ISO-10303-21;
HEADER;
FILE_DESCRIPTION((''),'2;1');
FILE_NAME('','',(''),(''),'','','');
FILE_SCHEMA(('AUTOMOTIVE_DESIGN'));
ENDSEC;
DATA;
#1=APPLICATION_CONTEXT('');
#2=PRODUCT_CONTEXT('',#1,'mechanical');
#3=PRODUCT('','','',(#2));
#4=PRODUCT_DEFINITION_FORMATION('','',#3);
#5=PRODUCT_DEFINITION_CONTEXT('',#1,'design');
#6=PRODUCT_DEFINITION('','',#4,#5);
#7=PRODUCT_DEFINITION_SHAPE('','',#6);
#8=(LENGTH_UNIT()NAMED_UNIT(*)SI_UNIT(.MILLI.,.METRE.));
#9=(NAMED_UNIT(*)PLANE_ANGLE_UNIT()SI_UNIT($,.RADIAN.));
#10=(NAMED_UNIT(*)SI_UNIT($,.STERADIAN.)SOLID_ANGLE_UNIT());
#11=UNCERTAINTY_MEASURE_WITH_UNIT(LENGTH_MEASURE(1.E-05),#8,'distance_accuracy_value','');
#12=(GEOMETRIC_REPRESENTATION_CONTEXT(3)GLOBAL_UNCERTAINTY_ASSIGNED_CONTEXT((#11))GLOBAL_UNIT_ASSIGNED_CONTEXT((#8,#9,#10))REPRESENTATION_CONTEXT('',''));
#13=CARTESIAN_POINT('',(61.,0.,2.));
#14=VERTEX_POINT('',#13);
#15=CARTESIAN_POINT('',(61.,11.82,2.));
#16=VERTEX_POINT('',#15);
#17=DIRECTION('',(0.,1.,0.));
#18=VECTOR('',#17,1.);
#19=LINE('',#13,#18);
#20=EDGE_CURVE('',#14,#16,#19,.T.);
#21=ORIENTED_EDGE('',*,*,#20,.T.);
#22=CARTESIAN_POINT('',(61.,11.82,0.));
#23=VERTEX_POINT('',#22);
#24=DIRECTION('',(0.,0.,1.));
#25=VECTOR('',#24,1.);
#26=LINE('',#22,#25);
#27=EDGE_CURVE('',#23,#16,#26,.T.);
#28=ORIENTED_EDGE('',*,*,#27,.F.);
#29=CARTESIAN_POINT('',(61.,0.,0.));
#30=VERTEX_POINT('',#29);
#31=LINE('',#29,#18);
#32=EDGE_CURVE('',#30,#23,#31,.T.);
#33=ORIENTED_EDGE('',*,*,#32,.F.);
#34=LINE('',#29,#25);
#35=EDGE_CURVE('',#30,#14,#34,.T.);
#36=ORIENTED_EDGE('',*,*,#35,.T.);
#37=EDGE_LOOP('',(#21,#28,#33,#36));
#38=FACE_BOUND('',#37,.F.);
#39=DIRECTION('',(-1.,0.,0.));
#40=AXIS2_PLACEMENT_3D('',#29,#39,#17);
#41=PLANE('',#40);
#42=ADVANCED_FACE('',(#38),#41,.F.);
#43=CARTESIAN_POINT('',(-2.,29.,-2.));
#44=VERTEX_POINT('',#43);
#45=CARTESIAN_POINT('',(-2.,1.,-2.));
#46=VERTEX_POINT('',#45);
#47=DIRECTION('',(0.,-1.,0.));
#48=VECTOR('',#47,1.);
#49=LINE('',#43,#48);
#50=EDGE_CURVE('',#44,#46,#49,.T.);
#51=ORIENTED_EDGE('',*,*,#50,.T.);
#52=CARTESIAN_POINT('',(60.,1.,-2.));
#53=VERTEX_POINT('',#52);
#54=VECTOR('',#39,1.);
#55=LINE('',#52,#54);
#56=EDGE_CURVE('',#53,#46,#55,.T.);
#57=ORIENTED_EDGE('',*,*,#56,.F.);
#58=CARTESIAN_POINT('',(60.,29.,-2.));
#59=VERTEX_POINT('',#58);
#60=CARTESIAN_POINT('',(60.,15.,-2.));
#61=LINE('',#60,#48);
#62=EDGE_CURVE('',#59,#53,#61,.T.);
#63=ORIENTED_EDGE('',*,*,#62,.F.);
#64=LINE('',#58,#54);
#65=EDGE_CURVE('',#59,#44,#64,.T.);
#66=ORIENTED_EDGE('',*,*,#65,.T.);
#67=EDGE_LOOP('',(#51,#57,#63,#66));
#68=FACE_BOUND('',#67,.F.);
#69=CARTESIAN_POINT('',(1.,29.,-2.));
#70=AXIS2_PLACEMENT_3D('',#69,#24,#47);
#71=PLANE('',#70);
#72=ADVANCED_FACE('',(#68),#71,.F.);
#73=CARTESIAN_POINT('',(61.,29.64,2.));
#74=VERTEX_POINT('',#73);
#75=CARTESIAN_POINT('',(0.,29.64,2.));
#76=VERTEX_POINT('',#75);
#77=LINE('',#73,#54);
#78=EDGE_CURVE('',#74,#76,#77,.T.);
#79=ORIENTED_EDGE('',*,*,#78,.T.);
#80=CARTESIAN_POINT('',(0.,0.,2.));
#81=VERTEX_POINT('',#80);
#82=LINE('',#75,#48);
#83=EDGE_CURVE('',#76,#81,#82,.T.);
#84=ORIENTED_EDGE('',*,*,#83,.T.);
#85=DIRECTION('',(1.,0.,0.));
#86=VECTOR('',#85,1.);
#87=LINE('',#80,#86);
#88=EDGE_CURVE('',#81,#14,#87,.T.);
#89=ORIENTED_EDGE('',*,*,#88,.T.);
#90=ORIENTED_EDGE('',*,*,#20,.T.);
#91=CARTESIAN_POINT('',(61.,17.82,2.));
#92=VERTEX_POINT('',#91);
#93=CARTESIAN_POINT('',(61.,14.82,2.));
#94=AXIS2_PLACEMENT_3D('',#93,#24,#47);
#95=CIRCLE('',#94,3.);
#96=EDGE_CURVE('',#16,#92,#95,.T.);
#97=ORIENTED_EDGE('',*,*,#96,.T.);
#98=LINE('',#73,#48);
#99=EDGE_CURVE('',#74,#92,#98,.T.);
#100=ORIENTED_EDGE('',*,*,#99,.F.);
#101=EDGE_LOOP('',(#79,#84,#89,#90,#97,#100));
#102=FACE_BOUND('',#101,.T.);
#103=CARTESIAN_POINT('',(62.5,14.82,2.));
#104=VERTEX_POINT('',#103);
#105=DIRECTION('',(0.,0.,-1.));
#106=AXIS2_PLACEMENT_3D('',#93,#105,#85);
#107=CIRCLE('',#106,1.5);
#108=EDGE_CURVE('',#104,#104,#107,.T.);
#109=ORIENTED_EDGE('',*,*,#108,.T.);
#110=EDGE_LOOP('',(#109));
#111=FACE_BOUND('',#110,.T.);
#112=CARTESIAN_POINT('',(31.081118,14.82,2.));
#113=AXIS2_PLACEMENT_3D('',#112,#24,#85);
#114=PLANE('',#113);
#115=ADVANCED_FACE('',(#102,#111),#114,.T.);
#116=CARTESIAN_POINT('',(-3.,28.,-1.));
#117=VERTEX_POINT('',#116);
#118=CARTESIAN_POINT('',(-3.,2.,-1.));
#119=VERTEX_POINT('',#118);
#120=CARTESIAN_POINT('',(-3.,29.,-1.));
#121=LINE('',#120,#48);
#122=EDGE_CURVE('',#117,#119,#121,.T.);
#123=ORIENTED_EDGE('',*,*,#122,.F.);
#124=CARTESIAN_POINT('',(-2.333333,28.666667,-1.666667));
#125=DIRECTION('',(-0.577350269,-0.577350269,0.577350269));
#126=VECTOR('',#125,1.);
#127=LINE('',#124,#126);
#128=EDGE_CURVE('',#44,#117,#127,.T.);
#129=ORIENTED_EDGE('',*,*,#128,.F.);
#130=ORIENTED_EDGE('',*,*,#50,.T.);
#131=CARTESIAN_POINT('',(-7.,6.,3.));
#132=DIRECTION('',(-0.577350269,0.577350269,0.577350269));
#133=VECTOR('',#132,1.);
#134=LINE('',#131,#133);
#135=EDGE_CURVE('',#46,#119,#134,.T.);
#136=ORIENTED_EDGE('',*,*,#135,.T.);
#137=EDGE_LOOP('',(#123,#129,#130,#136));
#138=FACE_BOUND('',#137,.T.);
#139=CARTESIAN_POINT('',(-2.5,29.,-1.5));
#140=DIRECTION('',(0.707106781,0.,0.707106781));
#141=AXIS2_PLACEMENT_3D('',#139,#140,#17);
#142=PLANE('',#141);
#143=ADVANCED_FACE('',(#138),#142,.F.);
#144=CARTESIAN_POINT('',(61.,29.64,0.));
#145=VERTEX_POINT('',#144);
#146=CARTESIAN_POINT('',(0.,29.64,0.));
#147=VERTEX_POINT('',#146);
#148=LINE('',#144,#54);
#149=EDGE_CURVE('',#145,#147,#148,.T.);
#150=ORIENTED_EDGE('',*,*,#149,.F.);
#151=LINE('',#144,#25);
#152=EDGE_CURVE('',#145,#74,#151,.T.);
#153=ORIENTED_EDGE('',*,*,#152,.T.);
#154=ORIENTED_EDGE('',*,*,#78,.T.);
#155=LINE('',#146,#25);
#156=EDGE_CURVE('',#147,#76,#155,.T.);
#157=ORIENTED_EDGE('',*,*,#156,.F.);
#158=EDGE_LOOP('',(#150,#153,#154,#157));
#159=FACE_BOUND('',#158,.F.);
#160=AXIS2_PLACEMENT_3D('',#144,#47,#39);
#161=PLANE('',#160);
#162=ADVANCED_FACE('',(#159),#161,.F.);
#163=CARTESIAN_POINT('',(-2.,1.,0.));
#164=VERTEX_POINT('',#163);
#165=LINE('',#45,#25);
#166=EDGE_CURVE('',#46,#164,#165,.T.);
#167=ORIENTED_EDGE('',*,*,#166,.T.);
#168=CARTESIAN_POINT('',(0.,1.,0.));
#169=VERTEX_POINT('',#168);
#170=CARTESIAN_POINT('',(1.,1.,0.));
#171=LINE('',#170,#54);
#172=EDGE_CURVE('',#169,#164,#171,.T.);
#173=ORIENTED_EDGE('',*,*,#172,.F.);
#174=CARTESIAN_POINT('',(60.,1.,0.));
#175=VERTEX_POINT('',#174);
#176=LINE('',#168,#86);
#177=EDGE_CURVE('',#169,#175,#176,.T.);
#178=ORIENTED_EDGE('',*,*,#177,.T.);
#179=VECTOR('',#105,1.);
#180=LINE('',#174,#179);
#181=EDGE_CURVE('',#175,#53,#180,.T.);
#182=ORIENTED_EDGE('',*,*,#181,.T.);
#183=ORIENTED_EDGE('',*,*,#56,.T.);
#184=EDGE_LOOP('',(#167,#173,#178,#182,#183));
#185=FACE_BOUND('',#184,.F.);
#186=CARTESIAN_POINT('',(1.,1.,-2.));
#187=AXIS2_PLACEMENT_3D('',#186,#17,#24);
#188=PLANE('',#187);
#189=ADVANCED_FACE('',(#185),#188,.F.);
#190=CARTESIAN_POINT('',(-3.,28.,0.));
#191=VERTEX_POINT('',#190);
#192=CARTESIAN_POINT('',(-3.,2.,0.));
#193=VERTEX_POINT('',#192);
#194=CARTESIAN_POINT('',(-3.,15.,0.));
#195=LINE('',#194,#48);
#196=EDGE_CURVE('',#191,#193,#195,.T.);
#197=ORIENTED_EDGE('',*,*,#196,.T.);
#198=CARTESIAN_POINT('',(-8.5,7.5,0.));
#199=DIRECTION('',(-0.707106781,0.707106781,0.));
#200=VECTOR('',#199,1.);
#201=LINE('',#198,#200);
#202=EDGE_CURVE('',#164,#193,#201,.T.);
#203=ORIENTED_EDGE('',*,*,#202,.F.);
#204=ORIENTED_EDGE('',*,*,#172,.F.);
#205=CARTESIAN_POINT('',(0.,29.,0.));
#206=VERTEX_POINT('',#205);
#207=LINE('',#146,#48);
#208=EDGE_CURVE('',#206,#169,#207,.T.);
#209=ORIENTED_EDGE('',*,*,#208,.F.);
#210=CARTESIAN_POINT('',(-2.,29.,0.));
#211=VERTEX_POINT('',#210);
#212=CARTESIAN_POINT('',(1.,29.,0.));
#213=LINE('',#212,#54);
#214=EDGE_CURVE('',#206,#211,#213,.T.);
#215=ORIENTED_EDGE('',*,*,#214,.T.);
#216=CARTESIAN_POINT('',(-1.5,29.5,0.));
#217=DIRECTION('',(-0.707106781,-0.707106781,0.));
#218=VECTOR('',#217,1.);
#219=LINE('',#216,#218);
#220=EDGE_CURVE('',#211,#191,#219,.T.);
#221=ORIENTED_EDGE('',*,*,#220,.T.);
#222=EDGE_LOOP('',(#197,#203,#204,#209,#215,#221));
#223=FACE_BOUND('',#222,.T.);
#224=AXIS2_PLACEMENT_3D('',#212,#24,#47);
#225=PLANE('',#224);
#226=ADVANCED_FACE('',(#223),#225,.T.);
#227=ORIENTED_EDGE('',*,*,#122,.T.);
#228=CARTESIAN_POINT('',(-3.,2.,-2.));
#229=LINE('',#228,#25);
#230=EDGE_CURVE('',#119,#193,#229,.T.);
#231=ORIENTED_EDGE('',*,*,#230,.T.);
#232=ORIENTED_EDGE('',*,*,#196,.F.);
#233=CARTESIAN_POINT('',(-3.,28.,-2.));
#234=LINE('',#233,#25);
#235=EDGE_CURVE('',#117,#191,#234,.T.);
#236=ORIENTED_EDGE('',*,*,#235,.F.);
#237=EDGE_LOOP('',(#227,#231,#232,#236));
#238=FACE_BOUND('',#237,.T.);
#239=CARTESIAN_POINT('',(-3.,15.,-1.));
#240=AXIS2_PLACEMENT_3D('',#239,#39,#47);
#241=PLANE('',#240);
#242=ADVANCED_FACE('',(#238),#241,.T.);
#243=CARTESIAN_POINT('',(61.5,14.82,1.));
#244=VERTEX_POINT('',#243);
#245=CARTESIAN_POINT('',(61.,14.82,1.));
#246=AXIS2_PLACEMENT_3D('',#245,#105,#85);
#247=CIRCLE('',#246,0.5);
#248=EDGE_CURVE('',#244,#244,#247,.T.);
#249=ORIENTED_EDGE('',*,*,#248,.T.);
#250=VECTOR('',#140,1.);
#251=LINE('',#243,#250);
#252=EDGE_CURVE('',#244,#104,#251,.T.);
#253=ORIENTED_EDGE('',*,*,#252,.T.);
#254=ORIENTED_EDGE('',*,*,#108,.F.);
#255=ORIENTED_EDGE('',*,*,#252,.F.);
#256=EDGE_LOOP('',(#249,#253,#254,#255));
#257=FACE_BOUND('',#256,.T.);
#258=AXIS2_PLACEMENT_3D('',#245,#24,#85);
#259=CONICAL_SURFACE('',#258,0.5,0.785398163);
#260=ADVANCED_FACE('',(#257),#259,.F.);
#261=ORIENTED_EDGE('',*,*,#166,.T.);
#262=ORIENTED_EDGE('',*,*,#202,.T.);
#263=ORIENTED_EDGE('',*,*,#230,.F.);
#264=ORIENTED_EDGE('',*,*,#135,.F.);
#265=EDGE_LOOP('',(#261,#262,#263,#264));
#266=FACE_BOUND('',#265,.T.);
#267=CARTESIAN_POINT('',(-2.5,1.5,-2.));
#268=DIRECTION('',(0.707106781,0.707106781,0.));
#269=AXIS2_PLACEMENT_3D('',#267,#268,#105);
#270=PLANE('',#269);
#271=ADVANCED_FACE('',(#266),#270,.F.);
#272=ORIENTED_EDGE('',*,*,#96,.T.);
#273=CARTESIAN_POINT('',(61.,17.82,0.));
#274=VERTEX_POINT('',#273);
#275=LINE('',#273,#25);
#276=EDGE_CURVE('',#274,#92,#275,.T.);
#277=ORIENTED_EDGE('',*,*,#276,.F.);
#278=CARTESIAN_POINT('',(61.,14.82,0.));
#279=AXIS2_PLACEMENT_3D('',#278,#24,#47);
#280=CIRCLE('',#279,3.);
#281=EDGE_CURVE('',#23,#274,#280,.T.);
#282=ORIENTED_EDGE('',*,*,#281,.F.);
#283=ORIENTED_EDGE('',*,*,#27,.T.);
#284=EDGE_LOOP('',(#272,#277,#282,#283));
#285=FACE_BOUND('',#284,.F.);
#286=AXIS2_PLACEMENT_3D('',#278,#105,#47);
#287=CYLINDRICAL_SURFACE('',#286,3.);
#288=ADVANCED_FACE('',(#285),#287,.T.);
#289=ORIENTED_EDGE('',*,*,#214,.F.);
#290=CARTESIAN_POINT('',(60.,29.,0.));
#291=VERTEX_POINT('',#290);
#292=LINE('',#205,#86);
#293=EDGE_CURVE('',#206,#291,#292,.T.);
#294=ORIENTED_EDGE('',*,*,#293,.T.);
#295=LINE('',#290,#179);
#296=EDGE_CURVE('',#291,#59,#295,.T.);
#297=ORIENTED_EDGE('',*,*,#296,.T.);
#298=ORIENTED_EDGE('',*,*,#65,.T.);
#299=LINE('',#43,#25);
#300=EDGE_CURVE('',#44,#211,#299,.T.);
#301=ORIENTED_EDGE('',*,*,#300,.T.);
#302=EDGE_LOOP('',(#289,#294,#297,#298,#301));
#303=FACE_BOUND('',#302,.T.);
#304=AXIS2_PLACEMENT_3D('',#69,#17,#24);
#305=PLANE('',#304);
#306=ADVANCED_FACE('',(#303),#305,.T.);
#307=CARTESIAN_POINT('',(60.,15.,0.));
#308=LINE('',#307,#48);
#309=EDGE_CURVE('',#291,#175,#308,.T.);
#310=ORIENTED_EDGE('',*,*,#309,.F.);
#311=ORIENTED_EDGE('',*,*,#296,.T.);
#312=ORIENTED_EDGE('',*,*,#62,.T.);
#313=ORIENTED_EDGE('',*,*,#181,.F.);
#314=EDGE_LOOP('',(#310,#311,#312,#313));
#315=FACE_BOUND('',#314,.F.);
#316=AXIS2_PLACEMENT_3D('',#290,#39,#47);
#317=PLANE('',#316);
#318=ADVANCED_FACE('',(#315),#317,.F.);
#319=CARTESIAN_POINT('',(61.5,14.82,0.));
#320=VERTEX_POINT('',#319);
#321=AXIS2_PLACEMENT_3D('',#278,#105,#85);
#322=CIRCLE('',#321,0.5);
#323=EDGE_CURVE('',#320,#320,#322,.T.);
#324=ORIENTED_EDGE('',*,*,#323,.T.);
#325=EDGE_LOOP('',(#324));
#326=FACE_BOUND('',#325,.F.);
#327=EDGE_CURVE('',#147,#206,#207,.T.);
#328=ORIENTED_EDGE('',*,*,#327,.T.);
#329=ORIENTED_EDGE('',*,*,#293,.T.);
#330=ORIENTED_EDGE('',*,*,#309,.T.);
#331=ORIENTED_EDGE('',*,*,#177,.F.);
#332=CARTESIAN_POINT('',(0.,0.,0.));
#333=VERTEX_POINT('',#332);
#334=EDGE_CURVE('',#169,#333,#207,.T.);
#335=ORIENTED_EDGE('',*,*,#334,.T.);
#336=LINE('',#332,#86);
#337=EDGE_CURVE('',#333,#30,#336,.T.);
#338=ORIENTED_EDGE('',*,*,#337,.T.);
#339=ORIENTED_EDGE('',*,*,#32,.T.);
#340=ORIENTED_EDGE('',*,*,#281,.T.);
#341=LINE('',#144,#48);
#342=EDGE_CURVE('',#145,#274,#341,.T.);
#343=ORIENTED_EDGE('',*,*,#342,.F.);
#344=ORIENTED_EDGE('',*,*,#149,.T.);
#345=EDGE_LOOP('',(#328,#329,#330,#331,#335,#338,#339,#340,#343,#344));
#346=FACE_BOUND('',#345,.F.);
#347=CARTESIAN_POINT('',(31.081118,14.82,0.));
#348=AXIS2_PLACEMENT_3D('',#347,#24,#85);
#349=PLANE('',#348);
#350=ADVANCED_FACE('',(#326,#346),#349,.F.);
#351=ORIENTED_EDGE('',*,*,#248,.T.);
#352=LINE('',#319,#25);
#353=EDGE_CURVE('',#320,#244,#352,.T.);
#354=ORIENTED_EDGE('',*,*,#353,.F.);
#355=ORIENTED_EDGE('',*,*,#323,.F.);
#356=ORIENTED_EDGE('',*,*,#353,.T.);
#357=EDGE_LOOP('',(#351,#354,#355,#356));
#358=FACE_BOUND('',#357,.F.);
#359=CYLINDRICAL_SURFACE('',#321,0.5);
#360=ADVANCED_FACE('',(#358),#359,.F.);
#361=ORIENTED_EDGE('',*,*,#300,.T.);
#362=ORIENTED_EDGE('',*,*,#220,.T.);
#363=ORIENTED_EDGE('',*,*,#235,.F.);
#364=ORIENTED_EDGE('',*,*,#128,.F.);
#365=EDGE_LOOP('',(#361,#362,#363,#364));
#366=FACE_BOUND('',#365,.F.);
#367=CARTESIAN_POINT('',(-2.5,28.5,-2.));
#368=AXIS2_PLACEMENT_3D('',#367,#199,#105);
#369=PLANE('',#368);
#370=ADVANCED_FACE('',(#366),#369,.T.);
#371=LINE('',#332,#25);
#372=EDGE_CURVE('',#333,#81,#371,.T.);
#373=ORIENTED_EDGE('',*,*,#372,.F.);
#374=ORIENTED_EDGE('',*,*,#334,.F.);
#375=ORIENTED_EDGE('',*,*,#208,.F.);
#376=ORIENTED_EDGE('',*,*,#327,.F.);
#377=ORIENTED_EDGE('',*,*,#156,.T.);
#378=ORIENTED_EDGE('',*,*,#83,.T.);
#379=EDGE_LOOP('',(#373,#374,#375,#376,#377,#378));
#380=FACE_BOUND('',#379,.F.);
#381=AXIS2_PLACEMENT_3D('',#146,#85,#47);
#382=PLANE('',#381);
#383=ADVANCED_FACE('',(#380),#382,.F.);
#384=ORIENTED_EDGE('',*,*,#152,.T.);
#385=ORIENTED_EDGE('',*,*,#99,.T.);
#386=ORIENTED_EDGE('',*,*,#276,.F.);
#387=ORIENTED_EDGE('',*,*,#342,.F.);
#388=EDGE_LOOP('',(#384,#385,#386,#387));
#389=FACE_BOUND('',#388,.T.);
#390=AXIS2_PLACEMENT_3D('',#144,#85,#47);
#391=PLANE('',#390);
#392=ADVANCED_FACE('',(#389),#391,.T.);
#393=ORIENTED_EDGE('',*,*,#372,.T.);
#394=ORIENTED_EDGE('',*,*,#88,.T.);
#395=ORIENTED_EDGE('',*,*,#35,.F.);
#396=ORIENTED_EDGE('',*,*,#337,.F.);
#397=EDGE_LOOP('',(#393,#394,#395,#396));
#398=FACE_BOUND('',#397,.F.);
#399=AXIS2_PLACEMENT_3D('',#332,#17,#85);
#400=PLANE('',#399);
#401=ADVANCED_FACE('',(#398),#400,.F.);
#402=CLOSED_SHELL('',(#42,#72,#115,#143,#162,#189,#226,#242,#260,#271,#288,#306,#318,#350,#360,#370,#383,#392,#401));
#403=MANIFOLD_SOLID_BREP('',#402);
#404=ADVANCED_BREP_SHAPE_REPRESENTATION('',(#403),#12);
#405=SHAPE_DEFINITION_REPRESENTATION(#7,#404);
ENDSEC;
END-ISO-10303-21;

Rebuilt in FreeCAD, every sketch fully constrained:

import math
import FreeCAD as App
import Part
import Sketcher

V = App.Vector
Q = App.Units.Quantity


def edges_at(feature, points):
    """Names of the edges that pass closest to the given points."""
    edges = feature.Shape.Edges
    near = lambda p: min(range(len(edges)), key=lambda i: edges[i].distToShape(Part.Vertex(*p))[0])
    return sorted({f"Edge{near(p) + 1}" for p in points})

doc = App.newDocument("Part")
body = doc.addObject("PartDesign::Body", "Body")

# Sketch on XY plane
sketch1 = body.newObject("Sketcher::SketchObject", "Sketch")
sketch1.AttachmentSupport = (doc.getObject("XY_Plane"), [""])
sketch1.MapMode = "FlatFace"
sketch1.addGeometry([
    Part.LineSegment(V(0, 0, 0), V(61, 0, 0)),  # 0
    Part.LineSegment(V(61, 0, 0), V(61, 11.8, 0)),  # 1
    Part.ArcOfCircle(Part.Circle(V(61, 14.8, 0), V(0, 0, 1), 3), math.radians(-90), math.radians(90)),  # 2
    Part.LineSegment(V(61, 17.8, 0), V(61, 29.6, 0)),  # 3
    Part.LineSegment(V(61, 29.6, 0), V(0, 29.6, 0)),  # 4
    Part.LineSegment(V(0, 29.6, 0), V(0, 0, 0)),  # 5
], False)
sketch1.addConstraint([
    Sketcher.Constraint("Coincident", 0, 2, 1, 1),
    Sketcher.Constraint("Coincident", 1, 2, 2, 1),
    Sketcher.Constraint("Coincident", 2, 2, 3, 1),
    Sketcher.Constraint("Coincident", 3, 2, 4, 1),
    Sketcher.Constraint("Coincident", 4, 2, 5, 1),
    Sketcher.Constraint("Coincident", 5, 2, 0, 1),
    Sketcher.Constraint("Horizontal", 0),
    Sketcher.Constraint("Vertical", 1),
    Sketcher.Constraint("Vertical", 3),
    Sketcher.Constraint("Horizontal", 4),
    Sketcher.Constraint("Vertical", 5),
    Sketcher.Constraint("Coincident", 5, 2, -1, 1),
    Sketcher.Constraint("Vertical", 2, 3, 0, 2),
    Sketcher.Constraint("Vertical", 1, 2, 2, 2),
    Sketcher.Constraint("Equal", 1, 3),
    Sketcher.Constraint("Radius", 2, Q("3 mm")),
    Sketcher.Constraint("DistanceX", 0, 1, 0, 2, Q("61 mm")),
    Sketcher.Constraint("DistanceY", 1, 1, 1, 2, Q("11.82 mm")),
])
pad1 = body.newObject("PartDesign::Pad", "Pad")
pad1.Profile = sketch1
pad1.Length = 2

# Sketch on XY plane
sketch2 = body.newObject("Sketcher::SketchObject", "Sketch001")
sketch2.AttachmentSupport = (doc.getObject("XY_Plane"), [""])
sketch2.MapMode = "FlatFace"
sketch2.addGeometry(Part.Circle(V(61, 14.8, 0), V(0, 0, 1), 0.5), False)
sketch2.addConstraint([
    Sketcher.Constraint("Diameter", 0, Q("1 mm")),
    Sketcher.Constraint("DistanceX", -1, 1, 0, 3, Q("61 mm")),
    Sketcher.Constraint("DistanceY", -1, 1, 0, 3, Q("14.82 mm")),
])
pocket1 = body.newObject("PartDesign::Pocket", "Pocket")
pocket1.Profile = sketch2
pocket1.Length = 5
pocket1.Reversed = True

# Sketch on XY plane
sketch3 = body.newObject("Sketcher::SketchObject", "Sketch002")
sketch3.AttachmentSupport = (doc.getObject("XY_Plane"), [""])
sketch3.MapMode = "FlatFace"
sketch3.addGeometry([
    Part.LineSegment(V(1, 1, 0), V(1, 29, 0)),
    Part.LineSegment(V(1, 29, 0), V(60, 29, 0)),
    Part.LineSegment(V(60, 29, 0), V(60, 1, 0)),
    Part.LineSegment(V(60, 1, 0), V(1, 1, 0)),
], False)
sketch3.addConstraint([
    Sketcher.Constraint("Coincident", 0, 2, 1, 1),
    Sketcher.Constraint("Coincident", 1, 2, 2, 1),
    Sketcher.Constraint("Coincident", 2, 2, 3, 1),
    Sketcher.Constraint("Coincident", 3, 2, 0, 1),
    Sketcher.Constraint("Vertical", 0),
    Sketcher.Constraint("Horizontal", 1),
    Sketcher.Constraint("Vertical", 2),
    Sketcher.Constraint("Horizontal", 3),
    Sketcher.Constraint("DistanceX", 1, 1, 1, 2, Q("59 mm")),
    Sketcher.Constraint("DistanceY", 0, 1, 0, 2, Q("28 mm")),
    Sketcher.Constraint("DistanceX", -1, 1, 0, 2, Q("1 mm")),
    Sketcher.Constraint("DistanceY", -1, 1, 0, 2, Q("29 mm")),
])
pad2 = body.newObject("PartDesign::Pad", "Pad001")
pad2.Profile = sketch3
pad2.Length = 2
pad2.Reversed = True

# Sketch on YZ plane
sketch4 = body.newObject("Sketcher::SketchObject", "Sketch003")
sketch4.AttachmentSupport = (doc.getObject("YZ_Plane"), [""])
sketch4.MapMode = "FlatFace"
sketch4.AttachmentOffset = App.Placement(V(0, 0, 1), App.Rotation())
sketch4.addGeometry([
    Part.LineSegment(V(29, 0, 0), V(29, -2, 0)),
    Part.LineSegment(V(29, -2, 0), V(1, -2, 0)),
    Part.LineSegment(V(1, -2, 0), V(1, 0, 0)),
    Part.LineSegment(V(1, 0, 0), V(29, 0, 0)),
], False)
sketch4.addConstraint([
    Sketcher.Constraint("Coincident", 0, 2, 1, 1),
    Sketcher.Constraint("Coincident", 1, 2, 2, 1),
    Sketcher.Constraint("Coincident", 2, 2, 3, 1),
    Sketcher.Constraint("Coincident", 3, 2, 0, 1),
    Sketcher.Constraint("Vertical", 0),
    Sketcher.Constraint("Horizontal", 1),
    Sketcher.Constraint("Vertical", 2),
    Sketcher.Constraint("Horizontal", 3),
    Sketcher.Constraint("PointOnObject", 2, 2, -1),
    Sketcher.Constraint("DistanceX", 1, 2, 1, 1, Q("28 mm")),
    Sketcher.Constraint("DistanceY", 0, 2, 0, 1, Q("2 mm")),
    Sketcher.Constraint("DistanceX", -1, 1, 0, 2, Q("29 mm")),
])
pad3 = body.newObject("PartDesign::Pad", "Pad002")
pad3.Profile = sketch4
pad3.Length = 4
pad3.Reversed = True
doc.recompute()

chamfer = body.newObject("PartDesign::Chamfer", "Chamfer")
chamfer.Base = (pad3, edges_at(pad3, [(-3, 1, -1), (-3, 29, -1), (-3, 15, -2)]))
chamfer.Size = 1
doc.recompute()

chamfer2 = body.newObject("PartDesign::Chamfer", "Chamfer001")
chamfer2.Base = (chamfer, edges_at(chamfer, [(60.5, 14.82, 2)]))
chamfer2.Size = 1

doc.recompute()
